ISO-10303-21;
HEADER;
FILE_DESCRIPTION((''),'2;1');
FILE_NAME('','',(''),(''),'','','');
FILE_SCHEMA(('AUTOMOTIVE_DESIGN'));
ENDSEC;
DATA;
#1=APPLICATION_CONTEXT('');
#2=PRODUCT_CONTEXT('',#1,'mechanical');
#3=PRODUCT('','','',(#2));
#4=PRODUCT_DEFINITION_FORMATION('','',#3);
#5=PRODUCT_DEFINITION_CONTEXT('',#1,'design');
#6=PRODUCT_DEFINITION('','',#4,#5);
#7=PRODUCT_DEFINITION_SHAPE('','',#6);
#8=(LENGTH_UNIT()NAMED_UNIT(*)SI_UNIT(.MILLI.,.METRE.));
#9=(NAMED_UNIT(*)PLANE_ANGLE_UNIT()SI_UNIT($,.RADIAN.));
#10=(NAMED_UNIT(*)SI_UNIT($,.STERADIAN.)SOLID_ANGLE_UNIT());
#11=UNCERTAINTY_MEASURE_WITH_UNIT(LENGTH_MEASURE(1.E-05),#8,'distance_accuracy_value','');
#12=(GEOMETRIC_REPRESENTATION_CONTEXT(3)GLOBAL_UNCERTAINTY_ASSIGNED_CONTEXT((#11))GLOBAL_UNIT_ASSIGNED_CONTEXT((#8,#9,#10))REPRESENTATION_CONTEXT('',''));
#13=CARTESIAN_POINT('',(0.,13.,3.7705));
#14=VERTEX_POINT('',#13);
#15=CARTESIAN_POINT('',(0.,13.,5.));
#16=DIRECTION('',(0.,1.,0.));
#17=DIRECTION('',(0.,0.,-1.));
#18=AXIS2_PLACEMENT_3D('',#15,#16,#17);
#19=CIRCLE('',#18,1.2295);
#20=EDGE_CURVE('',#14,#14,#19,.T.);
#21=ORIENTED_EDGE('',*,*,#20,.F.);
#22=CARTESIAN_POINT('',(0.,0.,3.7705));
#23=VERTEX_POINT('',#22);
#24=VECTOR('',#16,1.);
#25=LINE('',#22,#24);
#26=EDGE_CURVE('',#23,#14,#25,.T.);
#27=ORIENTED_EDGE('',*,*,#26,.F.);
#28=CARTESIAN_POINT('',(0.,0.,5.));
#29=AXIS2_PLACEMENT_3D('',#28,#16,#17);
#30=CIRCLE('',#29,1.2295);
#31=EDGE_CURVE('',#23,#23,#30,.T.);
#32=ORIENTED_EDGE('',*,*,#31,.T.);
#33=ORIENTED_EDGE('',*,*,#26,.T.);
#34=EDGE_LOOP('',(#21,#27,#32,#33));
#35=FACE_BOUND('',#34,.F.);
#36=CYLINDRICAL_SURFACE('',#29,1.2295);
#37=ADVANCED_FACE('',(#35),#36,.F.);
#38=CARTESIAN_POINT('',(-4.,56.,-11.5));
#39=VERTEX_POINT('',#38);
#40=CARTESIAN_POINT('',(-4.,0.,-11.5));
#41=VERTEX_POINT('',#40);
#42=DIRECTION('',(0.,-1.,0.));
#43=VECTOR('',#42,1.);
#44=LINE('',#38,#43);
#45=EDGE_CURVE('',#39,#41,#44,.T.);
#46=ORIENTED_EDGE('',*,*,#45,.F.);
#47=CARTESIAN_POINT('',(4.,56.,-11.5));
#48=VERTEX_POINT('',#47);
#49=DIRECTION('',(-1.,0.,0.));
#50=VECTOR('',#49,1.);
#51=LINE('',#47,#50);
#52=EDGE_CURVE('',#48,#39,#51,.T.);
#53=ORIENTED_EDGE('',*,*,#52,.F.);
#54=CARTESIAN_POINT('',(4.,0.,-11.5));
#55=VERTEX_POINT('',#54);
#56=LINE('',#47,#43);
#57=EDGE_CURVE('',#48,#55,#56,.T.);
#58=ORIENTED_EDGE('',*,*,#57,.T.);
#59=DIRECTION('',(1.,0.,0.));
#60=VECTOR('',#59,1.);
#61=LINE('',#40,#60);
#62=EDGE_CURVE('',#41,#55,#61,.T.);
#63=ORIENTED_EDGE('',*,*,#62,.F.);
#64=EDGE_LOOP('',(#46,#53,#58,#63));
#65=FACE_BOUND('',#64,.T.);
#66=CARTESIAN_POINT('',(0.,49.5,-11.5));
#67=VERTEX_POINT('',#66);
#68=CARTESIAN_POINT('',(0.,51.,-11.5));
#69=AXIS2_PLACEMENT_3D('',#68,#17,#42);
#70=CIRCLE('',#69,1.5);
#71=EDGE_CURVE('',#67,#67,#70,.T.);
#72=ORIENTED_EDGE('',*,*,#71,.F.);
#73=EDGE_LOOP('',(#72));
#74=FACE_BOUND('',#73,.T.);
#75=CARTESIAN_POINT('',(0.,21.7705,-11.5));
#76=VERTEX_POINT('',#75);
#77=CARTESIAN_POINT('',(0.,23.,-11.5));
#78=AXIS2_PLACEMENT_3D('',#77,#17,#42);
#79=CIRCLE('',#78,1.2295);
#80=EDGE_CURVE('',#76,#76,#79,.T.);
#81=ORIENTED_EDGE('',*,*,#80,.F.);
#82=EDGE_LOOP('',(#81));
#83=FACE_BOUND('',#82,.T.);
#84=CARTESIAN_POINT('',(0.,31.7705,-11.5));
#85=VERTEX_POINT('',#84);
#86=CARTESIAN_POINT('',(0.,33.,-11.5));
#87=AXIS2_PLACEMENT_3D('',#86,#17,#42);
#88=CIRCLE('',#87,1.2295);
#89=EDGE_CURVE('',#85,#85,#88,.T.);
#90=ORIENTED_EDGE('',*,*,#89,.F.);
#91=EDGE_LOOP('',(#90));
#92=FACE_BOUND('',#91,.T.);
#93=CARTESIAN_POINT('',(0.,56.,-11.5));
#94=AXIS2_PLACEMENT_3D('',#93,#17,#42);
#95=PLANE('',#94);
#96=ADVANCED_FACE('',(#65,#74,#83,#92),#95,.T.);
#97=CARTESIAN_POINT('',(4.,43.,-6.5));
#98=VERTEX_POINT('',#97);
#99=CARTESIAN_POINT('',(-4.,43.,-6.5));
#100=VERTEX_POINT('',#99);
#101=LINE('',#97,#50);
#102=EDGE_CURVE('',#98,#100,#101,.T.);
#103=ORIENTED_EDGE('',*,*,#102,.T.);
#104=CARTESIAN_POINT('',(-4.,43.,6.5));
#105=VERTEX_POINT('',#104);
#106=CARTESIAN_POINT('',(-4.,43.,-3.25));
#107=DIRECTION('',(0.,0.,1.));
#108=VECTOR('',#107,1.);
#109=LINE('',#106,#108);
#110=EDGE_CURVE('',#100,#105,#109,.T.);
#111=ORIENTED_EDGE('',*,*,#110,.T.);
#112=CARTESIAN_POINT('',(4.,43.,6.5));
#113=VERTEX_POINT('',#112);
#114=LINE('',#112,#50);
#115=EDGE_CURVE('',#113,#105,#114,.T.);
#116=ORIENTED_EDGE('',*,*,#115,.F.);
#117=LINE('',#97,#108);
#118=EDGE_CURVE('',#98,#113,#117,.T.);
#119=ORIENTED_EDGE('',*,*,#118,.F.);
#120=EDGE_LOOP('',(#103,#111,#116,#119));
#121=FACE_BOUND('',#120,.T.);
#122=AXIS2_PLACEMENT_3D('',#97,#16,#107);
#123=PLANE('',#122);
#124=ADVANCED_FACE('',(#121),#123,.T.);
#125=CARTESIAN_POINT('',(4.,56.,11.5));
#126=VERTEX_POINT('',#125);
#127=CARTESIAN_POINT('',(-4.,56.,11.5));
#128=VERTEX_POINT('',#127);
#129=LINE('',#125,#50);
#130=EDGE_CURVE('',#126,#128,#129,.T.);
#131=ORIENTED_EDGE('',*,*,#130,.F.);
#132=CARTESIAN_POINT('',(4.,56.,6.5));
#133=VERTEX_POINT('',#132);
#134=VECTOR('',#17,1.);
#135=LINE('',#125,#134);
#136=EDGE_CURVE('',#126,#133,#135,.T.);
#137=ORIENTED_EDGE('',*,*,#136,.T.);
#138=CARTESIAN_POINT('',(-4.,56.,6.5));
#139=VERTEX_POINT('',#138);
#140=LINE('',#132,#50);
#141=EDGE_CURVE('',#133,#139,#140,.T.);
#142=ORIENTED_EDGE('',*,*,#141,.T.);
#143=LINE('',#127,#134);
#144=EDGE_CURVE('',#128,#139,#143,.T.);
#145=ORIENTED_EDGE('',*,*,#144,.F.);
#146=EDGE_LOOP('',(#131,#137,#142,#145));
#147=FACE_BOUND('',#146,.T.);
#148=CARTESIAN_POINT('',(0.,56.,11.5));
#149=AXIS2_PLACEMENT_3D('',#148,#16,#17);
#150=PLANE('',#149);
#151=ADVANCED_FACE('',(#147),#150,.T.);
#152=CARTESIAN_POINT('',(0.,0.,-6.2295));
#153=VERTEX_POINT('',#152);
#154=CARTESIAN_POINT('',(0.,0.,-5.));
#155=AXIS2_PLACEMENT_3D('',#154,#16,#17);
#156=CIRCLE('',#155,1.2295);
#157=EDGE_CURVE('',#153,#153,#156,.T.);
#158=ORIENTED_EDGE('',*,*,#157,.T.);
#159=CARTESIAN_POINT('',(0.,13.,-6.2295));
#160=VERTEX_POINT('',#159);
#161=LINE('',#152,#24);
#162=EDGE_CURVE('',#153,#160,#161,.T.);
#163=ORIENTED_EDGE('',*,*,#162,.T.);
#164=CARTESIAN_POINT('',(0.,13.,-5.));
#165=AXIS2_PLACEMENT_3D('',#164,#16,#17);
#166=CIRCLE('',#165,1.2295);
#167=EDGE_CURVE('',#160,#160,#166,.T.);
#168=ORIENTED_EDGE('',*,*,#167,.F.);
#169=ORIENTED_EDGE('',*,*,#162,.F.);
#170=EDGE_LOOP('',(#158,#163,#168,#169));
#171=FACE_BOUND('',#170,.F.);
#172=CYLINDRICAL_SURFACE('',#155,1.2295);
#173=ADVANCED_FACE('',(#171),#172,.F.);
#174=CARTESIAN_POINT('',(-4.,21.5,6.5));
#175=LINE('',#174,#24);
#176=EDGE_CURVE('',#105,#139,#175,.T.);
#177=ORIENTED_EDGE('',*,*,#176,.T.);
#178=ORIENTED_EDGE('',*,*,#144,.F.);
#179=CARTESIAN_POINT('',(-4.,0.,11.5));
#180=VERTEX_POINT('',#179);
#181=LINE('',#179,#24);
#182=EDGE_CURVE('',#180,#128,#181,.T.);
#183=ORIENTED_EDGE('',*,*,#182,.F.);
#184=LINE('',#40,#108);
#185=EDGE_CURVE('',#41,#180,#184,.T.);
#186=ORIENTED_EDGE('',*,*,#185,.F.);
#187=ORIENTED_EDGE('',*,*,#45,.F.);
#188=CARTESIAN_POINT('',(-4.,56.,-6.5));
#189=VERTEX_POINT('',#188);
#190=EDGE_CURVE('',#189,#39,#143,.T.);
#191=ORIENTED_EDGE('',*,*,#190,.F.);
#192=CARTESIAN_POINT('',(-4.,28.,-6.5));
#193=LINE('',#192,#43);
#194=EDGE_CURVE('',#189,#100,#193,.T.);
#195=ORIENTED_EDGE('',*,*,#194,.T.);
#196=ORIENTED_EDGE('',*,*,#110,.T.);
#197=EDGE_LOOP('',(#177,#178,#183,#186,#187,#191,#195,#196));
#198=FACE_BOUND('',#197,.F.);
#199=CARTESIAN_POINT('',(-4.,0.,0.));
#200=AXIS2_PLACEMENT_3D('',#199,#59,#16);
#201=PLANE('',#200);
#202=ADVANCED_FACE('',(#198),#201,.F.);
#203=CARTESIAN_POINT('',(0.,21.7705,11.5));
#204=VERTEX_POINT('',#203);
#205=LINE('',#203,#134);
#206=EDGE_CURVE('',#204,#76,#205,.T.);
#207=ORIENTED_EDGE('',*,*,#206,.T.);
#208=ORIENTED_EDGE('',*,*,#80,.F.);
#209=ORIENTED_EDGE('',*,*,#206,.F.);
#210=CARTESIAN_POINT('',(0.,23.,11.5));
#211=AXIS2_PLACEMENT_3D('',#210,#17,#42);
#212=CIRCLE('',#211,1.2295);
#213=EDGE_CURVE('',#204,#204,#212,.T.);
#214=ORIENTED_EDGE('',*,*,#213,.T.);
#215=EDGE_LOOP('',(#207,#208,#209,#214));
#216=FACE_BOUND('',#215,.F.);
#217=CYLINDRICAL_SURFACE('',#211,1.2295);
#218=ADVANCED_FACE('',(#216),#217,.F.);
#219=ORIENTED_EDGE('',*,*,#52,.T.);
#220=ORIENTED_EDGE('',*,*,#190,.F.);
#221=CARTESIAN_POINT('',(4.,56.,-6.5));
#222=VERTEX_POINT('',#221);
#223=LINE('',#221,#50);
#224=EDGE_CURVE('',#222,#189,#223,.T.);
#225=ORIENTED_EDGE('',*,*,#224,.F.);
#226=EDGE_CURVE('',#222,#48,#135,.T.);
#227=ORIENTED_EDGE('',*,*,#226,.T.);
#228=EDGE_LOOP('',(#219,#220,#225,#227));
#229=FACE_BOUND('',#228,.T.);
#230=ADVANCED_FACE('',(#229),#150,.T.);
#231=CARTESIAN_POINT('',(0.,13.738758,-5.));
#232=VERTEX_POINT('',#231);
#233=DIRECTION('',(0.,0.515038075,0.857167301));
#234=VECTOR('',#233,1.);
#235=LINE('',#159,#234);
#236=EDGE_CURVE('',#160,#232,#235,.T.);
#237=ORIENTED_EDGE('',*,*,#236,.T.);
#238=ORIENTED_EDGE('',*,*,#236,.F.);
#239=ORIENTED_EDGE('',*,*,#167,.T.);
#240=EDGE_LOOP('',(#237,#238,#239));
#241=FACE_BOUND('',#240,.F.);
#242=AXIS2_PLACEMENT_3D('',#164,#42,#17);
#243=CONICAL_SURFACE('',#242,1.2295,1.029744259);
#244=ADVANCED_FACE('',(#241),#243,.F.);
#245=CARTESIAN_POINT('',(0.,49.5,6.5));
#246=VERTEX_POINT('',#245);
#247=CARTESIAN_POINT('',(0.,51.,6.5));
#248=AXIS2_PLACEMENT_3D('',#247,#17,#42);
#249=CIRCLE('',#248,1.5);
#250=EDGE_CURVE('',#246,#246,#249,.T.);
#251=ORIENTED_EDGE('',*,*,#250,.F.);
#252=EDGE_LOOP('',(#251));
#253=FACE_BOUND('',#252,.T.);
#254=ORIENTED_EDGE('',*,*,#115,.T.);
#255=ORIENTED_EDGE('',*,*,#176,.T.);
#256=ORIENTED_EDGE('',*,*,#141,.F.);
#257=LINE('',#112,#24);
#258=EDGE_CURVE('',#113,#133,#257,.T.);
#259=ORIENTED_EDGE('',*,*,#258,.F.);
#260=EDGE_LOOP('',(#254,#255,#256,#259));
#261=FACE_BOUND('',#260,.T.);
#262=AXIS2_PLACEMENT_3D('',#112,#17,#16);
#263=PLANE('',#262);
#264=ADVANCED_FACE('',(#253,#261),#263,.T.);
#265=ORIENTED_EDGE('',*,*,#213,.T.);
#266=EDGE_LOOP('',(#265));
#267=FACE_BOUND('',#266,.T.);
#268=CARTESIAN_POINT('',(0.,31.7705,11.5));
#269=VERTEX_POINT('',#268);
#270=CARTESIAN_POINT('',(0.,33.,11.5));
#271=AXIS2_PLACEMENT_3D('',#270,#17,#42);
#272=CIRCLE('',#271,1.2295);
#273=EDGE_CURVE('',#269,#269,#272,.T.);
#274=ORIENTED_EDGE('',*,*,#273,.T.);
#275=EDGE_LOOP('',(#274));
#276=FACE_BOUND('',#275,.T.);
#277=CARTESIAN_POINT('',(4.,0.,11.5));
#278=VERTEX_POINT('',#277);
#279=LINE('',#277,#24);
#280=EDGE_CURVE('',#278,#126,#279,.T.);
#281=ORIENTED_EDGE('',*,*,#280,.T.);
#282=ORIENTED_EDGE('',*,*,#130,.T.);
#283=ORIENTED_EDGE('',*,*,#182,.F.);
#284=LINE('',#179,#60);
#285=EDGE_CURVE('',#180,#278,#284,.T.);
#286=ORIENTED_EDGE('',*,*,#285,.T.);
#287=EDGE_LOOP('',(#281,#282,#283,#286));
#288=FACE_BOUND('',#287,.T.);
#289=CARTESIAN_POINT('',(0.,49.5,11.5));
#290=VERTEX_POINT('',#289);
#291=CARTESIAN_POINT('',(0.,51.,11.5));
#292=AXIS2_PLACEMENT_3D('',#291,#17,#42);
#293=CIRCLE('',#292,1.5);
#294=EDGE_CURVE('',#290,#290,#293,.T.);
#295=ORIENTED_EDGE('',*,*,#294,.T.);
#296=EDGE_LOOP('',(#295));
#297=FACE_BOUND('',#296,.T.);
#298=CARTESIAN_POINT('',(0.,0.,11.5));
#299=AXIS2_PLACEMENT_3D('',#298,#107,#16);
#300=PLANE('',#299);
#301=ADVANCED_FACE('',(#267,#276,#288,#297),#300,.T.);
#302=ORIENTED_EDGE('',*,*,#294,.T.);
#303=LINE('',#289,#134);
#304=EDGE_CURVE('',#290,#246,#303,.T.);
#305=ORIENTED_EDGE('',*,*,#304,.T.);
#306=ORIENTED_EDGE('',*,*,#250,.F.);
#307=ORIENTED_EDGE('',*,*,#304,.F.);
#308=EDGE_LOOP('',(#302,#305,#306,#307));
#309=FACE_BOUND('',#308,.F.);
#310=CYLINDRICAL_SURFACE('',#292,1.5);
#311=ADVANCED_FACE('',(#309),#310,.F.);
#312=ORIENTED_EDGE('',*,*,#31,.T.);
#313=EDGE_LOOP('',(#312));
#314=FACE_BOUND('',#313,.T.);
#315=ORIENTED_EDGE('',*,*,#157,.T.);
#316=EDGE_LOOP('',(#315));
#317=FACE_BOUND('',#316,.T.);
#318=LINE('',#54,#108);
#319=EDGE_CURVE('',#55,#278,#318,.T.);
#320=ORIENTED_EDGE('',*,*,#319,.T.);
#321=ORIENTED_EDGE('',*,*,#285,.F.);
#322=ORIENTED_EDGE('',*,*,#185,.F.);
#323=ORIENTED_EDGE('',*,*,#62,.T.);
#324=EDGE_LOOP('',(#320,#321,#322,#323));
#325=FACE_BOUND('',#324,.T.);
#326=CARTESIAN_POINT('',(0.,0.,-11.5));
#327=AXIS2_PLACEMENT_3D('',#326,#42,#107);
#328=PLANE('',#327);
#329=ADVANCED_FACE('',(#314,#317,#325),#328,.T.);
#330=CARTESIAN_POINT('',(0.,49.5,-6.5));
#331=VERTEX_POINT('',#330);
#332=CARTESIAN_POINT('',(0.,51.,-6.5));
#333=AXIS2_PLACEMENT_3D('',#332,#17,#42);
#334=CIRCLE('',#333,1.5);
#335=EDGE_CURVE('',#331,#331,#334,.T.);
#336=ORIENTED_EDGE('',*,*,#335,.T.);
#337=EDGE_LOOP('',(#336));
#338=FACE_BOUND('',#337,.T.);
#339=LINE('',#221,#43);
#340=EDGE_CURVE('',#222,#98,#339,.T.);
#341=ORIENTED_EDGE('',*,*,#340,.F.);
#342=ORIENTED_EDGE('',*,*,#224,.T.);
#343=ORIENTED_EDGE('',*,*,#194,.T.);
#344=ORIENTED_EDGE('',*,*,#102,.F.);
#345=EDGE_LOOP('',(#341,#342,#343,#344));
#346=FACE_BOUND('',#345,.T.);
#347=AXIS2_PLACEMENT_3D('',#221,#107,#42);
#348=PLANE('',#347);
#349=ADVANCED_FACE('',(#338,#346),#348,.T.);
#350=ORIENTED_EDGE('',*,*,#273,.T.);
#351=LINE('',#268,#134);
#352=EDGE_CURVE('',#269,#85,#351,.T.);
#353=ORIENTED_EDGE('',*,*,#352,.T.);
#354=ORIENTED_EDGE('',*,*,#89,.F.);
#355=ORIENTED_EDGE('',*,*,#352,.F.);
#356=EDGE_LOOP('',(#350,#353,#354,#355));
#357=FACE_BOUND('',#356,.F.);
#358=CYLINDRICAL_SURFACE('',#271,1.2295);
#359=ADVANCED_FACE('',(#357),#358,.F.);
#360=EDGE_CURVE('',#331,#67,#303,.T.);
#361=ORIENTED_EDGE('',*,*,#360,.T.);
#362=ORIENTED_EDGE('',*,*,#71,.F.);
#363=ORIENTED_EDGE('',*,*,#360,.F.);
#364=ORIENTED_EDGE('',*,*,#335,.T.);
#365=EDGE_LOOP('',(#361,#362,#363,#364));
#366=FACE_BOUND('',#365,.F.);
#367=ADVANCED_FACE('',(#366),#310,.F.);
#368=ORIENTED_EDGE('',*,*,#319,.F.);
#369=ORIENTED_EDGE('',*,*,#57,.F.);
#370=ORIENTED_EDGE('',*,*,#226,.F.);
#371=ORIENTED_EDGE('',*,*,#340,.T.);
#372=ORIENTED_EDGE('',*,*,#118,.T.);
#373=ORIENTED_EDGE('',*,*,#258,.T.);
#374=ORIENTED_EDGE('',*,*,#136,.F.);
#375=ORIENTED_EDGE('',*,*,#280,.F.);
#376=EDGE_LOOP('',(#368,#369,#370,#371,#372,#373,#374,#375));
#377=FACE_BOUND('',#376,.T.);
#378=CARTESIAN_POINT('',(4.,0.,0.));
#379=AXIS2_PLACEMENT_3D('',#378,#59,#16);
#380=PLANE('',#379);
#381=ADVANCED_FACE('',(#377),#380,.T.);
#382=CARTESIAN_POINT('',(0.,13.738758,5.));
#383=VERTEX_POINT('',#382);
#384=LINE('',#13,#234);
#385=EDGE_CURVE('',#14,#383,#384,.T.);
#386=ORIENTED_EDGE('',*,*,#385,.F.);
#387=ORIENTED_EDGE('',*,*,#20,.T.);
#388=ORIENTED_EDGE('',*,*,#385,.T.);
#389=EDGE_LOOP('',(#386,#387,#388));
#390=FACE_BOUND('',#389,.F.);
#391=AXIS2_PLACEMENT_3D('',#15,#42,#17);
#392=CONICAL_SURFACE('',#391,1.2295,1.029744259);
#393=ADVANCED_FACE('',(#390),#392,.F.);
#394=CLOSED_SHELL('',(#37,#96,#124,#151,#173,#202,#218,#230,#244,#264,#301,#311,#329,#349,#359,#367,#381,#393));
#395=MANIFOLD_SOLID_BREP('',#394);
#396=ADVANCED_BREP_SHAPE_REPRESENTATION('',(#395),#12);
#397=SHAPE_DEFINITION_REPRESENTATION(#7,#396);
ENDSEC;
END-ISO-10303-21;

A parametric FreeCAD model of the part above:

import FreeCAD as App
import Part
import Sketcher

doc = App.newDocument("Part")
body = doc.addObject("PartDesign::Body", "Body")

# Sketch on YZ plane
sketch1 = body.newObject("Sketcher::SketchObject", "Sketch")
sketch1.AttachmentSupport = (doc.getObject("YZ_Plane"), [""])
sketch1.MapMode = "FlatFace"
sketch1.addGeometry([
    Part.LineSegment(App.Vector(56, 12, 0), App.Vector(0, 12, 0)),
    Part.LineSegment(App.Vector(0, 12, 0), App.Vector(0, -12, 0)),
    Part.LineSegment(App.Vector(0, -12, 0), App.Vector(56, -12, 0)),
    Part.LineSegment(App.Vector(56, -12, 0), App.Vector(56, 12, 0)),
], False)
sketch1.addConstraint([
    Sketcher.Constraint("Coincident", 0, 2, 1, 1),
    Sketcher.Constraint("Coincident", 1, 2, 2, 1),
    Sketcher.Constraint("Coincident", 2, 2, 3, 1),
    Sketcher.Constraint("Coincident", 3, 2, 0, 1),
    Sketcher.Constraint("Horizontal", 0),
    Sketcher.Constraint("Vertical", 1),
    Sketcher.Constraint("Horizontal", 2),
    Sketcher.Constraint("Vertical", 3),
    Sketcher.Constraint("Symmetric", 0, 2, 1, 2, -1, 1),
    Sketcher.Constraint("DistanceX", 0, 2, 0, 1, 56.0),
    Sketcher.Constraint("DistanceY", 1, 2, 1, 1, 23.0),
])
pad1 = body.newObject("PartDesign::Pad", "Pad")
pad1.Profile = sketch1
pad1.Length = 8
pad1.Midplane = True

# Sketch on YZ plane
sketch2 = body.newObject("Sketcher::SketchObject", "Sketch001")
sketch2.AttachmentSupport = (doc.getObject("YZ_Plane"), [""])
sketch2.MapMode = "FlatFace"
sketch2.AttachmentOffset = App.Placement(App.Vector(0, 0, 4), App.Rotation())
sketch2.addGeometry([
    Part.LineSegment(App.Vector(43, -6, 0), App.Vector(56, -6, 0)),
    Part.LineSegment(App.Vector(56, -6, 0), App.Vector(56, 6, 0)),
    Part.LineSegment(App.Vector(56, 6, 0), App.Vector(43, 6, 0)),
    Part.LineSegment(App.Vector(43, 6, 0), App.Vector(43, -6, 0)),
], False)
sketch2.addConstraint([
    Sketcher.Constraint("Coincident", 0, 2, 1, 1),
    Sketcher.Constraint("Coincident", 1, 2, 2, 1),
    Sketcher.Constraint("Coincident", 2, 2, 3, 1),
    Sketcher.Constraint("Coincident", 3, 2, 0, 1),
    Sketcher.Constraint("Horizontal", 0),
    Sketcher.Constraint("Vertical", 1),
    Sketcher.Constraint("Horizontal", 2),
    Sketcher.Constraint("Vertical", 3),
    Sketcher.Constraint("Equal", 2, 1),
    Sketcher.Constraint("DistanceX", 0, 1, 0, 2, 13.0),
    Sketcher.Constraint("DistanceY", 0, 2, -1, 1, 6.5),
    Sketcher.Constraint("DistanceX", -1, 1, 0, 2, 56.0),
])
pocket1 = body.newObject("PartDesign::Pocket", "Pocket")
pocket1.Profile = sketch2
pocket1.Type = "ThroughAll"

# Sketch on XY plane
sketch3 = body.newObject("Sketcher::SketchObject", "Sketch002")
sketch3.AttachmentSupport = (doc.getObject("XY_Plane"), [""])
sketch3.MapMode = "FlatFace"
sketch3.AttachmentOffset = App.Placement(App.Vector(0, 0, 11.5), App.Rotation())
sketch3.addGeometry(Part.Circle(App.Vector(0, 51, 0), App.Vector(0, 0, 1), 1.5), False)
sketch3.addConstraint([
    Sketcher.Constraint("PointOnObject", 0, 3, -2),
    Sketcher.Constraint("Diameter", 0, 3.0),
    Sketcher.Constraint("DistanceY", -1, 1, 0, 3, 51.0),
])
doc.recompute()
hole = body.newObject("PartDesign::Hole", "Hole")
hole.Profile = sketch3
hole.ThreadType = "None"
hole.Diameter = 3
hole.DepthType = "ThroughAll"

# Sketch on XZ plane
sketch4 = body.newObject("Sketcher::SketchObject", "Sketch003")
sketch4.AttachmentSupport = (doc.getObject("XZ_Plane"), [""])
sketch4.MapMode = "FlatFace"
sketch4.addGeometry([
    Part.Circle(App.Vector(0, 5, 0), App.Vector(0, 0, 1), 1.2),
    Part.Circle(App.Vector(0, -5, 0), App.Vector(0, 0, 1), 1.2),
], False)
sketch4.addConstraint([
    Sketcher.Constraint("Equal", 0, 1),
    Sketcher.Constraint("Symmetric", 0, 3, 1, 3, -1, 1),
    Sketcher.Constraint("PointOnObject", 0, 3, -2),
    Sketcher.Constraint("Diameter", 0, 2.459),
    Sketcher.Constraint("DistanceY", -1, 1, 0, 3, 5.0),
])
doc.recompute()
hole2 = body.newObject("PartDesign::Hole", "Hole001")
hole2.Profile = sketch4
hole2.ThreadType = "None"
hole2.Diameter = 2.459
hole2.DepthType = "Dimension"
hole2.Depth = 13
hole2.DrillPoint = "Angled"
hole2.DrillPointAngle = 118

# Sketch on XY plane
sketch5 = body.newObject("Sketcher::SketchObject", "Sketch004")
sketch5.AttachmentSupport = (doc.getObject("XY_Plane"), [""])
sketch5.MapMode = "FlatFace"
sketch5.AttachmentOffset = App.Placement(App.Vector(0, 0, 11.5), App.Rotation())
sketch5.addGeometry([
    Part.Circle(App.Vector(0, 33, 0), App.Vector(0, 0, 1), 1.2),
    Part.Circle(App.Vector(0, 23, 0), App.Vector(0, 0, 1), 1.2),
], False)
sketch5.addConstraint([
    Sketcher.Constraint("Equal", 0, 1),
    Sketcher.Constraint("PointOnObject", 0, 3, -2),
    Sketcher.Constraint("PointOnObject", 1, 3, -2),
    Sketcher.Constraint("Diameter", 0, 2.459),
    Sketcher.Constraint("DistanceY", -1, 1, 0, 3, 33.0),
    Sketcher.Constraint("DistanceY", -1, 1, 1, 3, 23.0),
])
doc.recompute()
hole3 = body.newObject("PartDesign::Hole", "Hole002")
hole3.Profile = sketch5
hole3.ThreadType = "None"
hole3.Diameter = 2.459
hole3.DepthType = "ThroughAll"

doc.recompute()
